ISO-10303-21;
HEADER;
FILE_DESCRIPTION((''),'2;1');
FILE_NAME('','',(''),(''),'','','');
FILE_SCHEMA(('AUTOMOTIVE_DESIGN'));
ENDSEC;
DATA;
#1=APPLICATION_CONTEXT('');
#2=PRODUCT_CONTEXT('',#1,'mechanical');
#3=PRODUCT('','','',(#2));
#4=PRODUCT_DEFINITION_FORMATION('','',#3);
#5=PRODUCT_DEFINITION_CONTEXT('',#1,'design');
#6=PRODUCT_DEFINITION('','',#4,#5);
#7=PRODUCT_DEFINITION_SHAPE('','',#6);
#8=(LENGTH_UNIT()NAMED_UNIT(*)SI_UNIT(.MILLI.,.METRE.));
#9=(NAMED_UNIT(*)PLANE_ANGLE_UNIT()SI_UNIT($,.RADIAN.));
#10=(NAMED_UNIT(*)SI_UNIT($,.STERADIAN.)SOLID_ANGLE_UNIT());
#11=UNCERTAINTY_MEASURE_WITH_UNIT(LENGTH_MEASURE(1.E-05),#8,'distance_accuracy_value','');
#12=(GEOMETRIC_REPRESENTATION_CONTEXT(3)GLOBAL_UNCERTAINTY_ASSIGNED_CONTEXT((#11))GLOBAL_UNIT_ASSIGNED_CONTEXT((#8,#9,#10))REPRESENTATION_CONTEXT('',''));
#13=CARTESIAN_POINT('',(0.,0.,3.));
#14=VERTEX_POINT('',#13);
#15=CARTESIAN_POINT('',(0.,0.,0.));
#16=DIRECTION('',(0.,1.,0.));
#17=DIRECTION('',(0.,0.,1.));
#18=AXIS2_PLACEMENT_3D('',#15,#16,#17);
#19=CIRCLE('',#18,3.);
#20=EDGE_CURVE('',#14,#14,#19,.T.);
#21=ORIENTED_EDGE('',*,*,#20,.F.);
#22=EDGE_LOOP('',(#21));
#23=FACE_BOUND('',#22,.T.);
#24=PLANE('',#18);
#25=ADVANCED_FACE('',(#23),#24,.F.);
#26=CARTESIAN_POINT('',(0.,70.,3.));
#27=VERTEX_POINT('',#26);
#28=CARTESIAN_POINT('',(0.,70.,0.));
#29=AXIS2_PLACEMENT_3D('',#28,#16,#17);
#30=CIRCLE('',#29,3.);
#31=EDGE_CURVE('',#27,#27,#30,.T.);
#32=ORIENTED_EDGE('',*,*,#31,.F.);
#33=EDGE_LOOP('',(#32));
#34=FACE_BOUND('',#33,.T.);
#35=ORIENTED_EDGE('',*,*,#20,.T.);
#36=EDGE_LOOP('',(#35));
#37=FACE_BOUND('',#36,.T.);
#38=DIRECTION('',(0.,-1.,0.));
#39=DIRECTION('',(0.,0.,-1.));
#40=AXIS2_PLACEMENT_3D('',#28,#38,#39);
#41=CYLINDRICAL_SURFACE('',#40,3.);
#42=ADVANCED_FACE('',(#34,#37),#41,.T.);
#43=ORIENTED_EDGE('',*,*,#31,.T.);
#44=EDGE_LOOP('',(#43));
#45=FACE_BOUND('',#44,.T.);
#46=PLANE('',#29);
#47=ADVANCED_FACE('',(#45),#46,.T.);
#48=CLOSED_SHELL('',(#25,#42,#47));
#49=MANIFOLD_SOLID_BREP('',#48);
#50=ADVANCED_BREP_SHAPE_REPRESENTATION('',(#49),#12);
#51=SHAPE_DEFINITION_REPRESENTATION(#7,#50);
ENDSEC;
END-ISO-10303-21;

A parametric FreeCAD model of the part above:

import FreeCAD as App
import Part
import Sketcher

V = App.Vector

doc = App.newDocument("Part")
body = doc.addObject("PartDesign::Body", "Body")

sketch1 = doc.addObject("Sketcher::SketchObject", "Sketch")
body.addObject(sketch1)
sketch1.AttachmentSupport = (doc.XZ_Plane, [""])
sketch1.MapMode = "FlatFace"
sketch1.addGeometry(Part.Circle(V(0, 0, 0), V(0, 0, 1), 3), False)
sketch1.addConstraint([
    Sketcher.Constraint("Coincident", 0, 3, -1, 1),
    Sketcher.Constraint("Diameter", 0, 6.0),
])
pad1 = doc.addObject("PartDesign::Pad", "Pad")
body.addObject(pad1)
pad1.Profile = sketch1
pad1.Length = 70
pad1.Reversed = True

doc.recompute()
